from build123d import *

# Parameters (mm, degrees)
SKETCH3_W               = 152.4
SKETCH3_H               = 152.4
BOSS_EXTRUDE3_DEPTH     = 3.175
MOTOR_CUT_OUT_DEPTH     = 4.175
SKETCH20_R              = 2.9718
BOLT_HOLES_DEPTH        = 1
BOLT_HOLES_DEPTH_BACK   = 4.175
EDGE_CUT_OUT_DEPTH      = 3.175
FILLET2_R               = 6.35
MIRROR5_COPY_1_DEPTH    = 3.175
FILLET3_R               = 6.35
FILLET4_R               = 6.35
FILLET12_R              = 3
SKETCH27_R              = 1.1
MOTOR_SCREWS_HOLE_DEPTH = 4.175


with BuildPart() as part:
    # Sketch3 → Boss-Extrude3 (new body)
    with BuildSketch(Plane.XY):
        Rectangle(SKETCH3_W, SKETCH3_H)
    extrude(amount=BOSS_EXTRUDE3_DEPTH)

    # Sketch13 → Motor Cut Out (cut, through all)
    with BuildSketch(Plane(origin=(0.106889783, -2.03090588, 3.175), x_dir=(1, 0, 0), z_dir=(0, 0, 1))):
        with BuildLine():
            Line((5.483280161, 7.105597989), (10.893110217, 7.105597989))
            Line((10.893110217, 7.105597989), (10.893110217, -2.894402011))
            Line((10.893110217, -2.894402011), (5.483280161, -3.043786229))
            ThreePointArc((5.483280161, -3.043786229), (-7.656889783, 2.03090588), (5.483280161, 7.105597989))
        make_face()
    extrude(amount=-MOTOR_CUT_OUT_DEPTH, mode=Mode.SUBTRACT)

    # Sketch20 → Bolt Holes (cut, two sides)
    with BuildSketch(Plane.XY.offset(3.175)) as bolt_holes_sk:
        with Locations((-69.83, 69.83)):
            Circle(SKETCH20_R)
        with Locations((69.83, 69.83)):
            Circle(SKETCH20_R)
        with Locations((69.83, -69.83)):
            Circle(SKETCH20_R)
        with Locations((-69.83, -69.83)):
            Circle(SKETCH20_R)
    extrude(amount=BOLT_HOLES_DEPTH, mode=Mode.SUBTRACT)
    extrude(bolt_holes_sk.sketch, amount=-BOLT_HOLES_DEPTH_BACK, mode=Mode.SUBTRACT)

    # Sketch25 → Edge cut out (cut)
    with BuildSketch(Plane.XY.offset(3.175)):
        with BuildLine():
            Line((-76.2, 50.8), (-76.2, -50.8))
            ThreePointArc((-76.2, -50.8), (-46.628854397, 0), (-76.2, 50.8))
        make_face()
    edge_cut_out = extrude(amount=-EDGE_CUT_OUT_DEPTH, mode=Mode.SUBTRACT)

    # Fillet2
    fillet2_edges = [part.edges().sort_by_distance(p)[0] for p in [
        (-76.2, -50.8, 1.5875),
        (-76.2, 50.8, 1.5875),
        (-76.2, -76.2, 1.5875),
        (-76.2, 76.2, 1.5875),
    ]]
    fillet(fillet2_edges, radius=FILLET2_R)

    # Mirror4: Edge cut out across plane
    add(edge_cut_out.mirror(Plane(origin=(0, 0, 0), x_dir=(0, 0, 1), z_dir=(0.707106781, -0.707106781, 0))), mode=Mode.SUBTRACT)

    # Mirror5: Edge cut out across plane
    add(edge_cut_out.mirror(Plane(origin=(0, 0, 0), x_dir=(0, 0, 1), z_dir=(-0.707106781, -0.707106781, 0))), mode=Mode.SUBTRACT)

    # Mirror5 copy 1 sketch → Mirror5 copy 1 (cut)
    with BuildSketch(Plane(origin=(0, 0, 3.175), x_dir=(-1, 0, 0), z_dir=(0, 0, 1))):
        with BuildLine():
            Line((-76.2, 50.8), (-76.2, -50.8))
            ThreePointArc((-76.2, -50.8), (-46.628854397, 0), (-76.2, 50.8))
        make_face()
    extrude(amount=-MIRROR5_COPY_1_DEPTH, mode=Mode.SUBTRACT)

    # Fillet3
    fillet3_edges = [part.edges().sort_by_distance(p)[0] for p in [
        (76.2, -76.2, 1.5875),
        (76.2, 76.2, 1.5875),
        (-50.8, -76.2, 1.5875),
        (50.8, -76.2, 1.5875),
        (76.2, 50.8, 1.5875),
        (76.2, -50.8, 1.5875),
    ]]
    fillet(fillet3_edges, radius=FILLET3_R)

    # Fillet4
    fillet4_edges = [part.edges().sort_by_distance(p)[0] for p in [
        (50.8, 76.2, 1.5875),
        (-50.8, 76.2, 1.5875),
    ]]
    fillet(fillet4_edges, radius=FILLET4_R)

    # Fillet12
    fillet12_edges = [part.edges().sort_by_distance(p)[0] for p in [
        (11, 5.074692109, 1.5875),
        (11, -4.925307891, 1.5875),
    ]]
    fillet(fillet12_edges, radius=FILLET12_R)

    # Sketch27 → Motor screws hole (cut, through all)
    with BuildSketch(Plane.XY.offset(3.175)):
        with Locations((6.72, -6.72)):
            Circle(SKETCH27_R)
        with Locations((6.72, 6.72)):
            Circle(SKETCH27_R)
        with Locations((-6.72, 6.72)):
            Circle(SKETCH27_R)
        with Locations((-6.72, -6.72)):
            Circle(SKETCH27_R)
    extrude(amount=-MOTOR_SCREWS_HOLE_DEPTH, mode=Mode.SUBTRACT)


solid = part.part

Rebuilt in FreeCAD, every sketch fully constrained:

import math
import FreeCAD as App
import Part
import Sketcher
Q = App.Units.Quantity


def edges_at(feature, points):
    """Names of the edges that pass closest to the given points."""
    edges = feature.Shape.Edges
    near = lambda p: min(range(len(edges)), key=lambda i: edges[i].distToShape(Part.Vertex(*p))[0])
    return sorted({f"Edge{near(p) + 1}" for p in points})


def add_polygon(sketch, points):
    """Adds a closed chain of lines whose ends are joined by coincident constraints."""
    first, n = sketch.GeometryCount, len(points)
    for a, b in zip(points, points[1:] + points[:1]):
        sketch.addGeometry(Part.LineSegment(App.Vector(*a, 0), App.Vector(*b, 0)), False)
    for i in range(n):
        sketch.addConstraint(Sketcher.Constraint("Coincident", first + i, 2, first + (i + 1) % n, 1))

doc = App.newDocument("Part")
body = doc.addObject("PartDesign::Body", "Body")

# Sketch on XY plane
sketch1 = doc.addObject("Sketcher::SketchObject", "Sketch")
body.addObject(sketch1)
sketch1.AttachmentSupport = (doc.XY_Plane, [""])
sketch1.MapMode = "FlatFace"
add_polygon(sketch1, [(-76.2, 76.2), (-76.2, -76.2), (76.2, -76.2), (76.2, 76.2)])  # lines 0-3
sketch1.addConstraint(Sketcher.Constraint("Vertical", 0))
sketch1.addConstraint(Sketcher.Constraint("Horizontal", 1))
sketch1.addConstraint(Sketcher.Constraint("Vertical", 2))
sketch1.addConstraint(Sketcher.Constraint("Horizontal", 3))
sketch1.addConstraint(Sketcher.Constraint("Symmetric", 0, 2, 2, 2, -1, 1))
sketch1.addConstraint(Sketcher.Constraint("Equal", 3, 0))
sketch1.addConstraint(Sketcher.Constraint("DistanceX", 1, 1, 1, 2, Q("6 in")))
pad1 = doc.addObject("PartDesign::Pad", "Pad")
body.addObject(pad1)
pad1.Profile = sketch1
pad1.Length = Q("0.125 in")

# Sketch on XY plane
sketch2 = doc.addObject("Sketcher::SketchObject", "Sketch001")
body.addObject(sketch2)
sketch2.AttachmentSupport = (doc.XY_Plane, [""])
sketch2.MapMode = "FlatFace"
sketch2.AttachmentOffset = App.Placement(App.Vector(0, 0, 0.125 * 25.4), App.Rotation())
sketch2.addGeometry(Part.LineSegment(App.Vector(11, 5.074692, 0), App.Vector(5.59017, 5.074692, 0)), False)
sketch2.addGeometry(Part.ArcOfCircle(Part.Circle(App.Vector(0, 0, 0), App.Vector(0, 0, 1), 7.55), math.radians(42.232807), math.radians(317.767193)), False)
sketch2.addGeometry(Part.LineSegment(App.Vector(5.59017, -5.074692, 0), App.Vector(11, -4.925308, 0)), False)
sketch2.addGeometry(Part.LineSegment(App.Vector(11, -4.925308, 0), App.Vector(11, 5.074692, 0)), False)
sketch2.addConstraint(Sketcher.Constraint("Coincident", 0, 2, 1, 1))
sketch2.addConstraint(Sketcher.Constraint("Coincident", 1, 2, 2, 1))
sketch2.addConstraint(Sketcher.Constraint("Coincident", 2, 2, 3, 1))
sketch2.addConstraint(Sketcher.Constraint("Coincident", 3, 2, 0, 1))
sketch2.addConstraint(Sketcher.Constraint("Horizontal", 0))
sketch2.addConstraint(Sketcher.Constraint("Vertical", 3))
sketch2.addConstraint(Sketcher.Constraint("Coincident", 1, 3, -1, 1))
sketch2.addConstraint(Sketcher.Constraint("Vertical", 0, 2, 1, 2))
sketch2.addConstraint(Sketcher.Constraint("Radius", 1, 7.55))
sketch2.addConstraint(Sketcher.Constraint("DistanceY", 3, 1, 3, 2, 10.0))
sketch2.addConstraint(Sketcher.Constraint("DistanceX", 0, 2, 0, 1, 5.40983))
sketch2.addConstraint(Sketcher.Constraint("DistanceX", -1, 1, 2, 2, 11.0))
pocket1 = doc.addObject("PartDesign::Pocket", "Pocket")
body.addObject(pocket1)
pocket1.Profile = sketch2
pocket1.Type = "ThroughAll"

# Sketch on XY plane
sketch3 = doc.addObject("Sketcher::SketchObject", "Sketch002")
body.addObject(sketch3)
sketch3.AttachmentSupport = (doc.XY_Plane, [""])
sketch3.MapMode = "FlatFace"
sketch3.AttachmentOffset = App.Placement(App.Vector(0, 0, 0.125 * 25.4), App.Rotation())
sketch3.addGeometry(Part.Circle(App.Vector(-69.83, 69.83, 0), App.Vector(0, 0, 1), 2.9718), False)
sketch3.addGeometry(Part.Circle(App.Vector(69.83, 69.83, 0), App.Vector(0, 0, 1), 2.9718), False)
sketch3.addGeometry(Part.Circle(App.Vector(69.83, -69.83, 0), App.Vector(0, 0, 1), 2.9718), False)
sketch3.addGeometry(Part.Circle(App.Vector(-69.83, -69.83, 0), App.Vector(0, 0, 1), 2.9718), False)
sketch3.addConstraint(Sketcher.Constraint("Equal", 0, 1))
sketch3.addConstraint(Sketcher.Constraint("Equal", 1, 2))
sketch3.addConstraint(Sketcher.Constraint("Equal", 2, 3))
sketch3.addConstraint(Sketcher.Constraint("Symmetric", 0, 3, 2, 3, -1, 1))
sketch3.addConstraint(Sketcher.Constraint("Symmetric", 1, 3, 3, 3, -1, 1))
sketch3.addConstraint(Sketcher.Constraint("Symmetric", 0, 3, 1, 3, -2))
sketch3.addConstraint(Sketcher.Constraint("Diameter", 0, Q("0.234 in")))
sketch3.addConstraint(Sketcher.Constraint("DistanceX", 0, 3, -1, 1, 69.83))
sketch3.addConstraint(Sketcher.Constraint("DistanceY", -1, 1, 0, 3, 69.83))
pocket2 = doc.addObject("PartDesign::Pocket", "Pocket001")
body.addObject(pocket2)
pocket2.Profile = sketch3
pocket2.Type = "ThroughAll"
pocket2.Midplane = True

# Sketch on XY plane
sketch4 = doc.addObject("Sketcher::SketchObject", "Sketch003")
body.addObject(sketch4)
sketch4.AttachmentSupport = (doc.XY_Plane, [""])
sketch4.MapMode = "FlatFace"
sketch4.AttachmentOffset = App.Placement(App.Vector(0, 0, 0.125 * 25.4), App.Rotation())
sketch4.addGeometry(Part.LineSegment(App.Vector(-76.2, 50.8, 0), App.Vector(-76.2, -50.8, 0)), False)
sketch4.addGeometry(Part.ArcOfCircle(Part.Circle(App.Vector(-105.048854, 0, 0), App.Vector(0, 0, 1), 58.42), math.radians(-60.408154), math.radians(60.408154)), False)
sketch4.addConstraint(Sketcher.Constraint("Coincident", 0, 1, 1, 2))
sketch4.addConstraint(Sketcher.Constraint("Coincident", 1, 1, 0, 2))
sketch4.addConstraint(Sketcher.Constraint("Vertical", 0))
sketch4.addConstraint(Sketcher.Constraint("PointOnObject", 1, 3, -1))
sketch4.addConstraint(Sketcher.Constraint("Radius", 1, Q("2.3 in")))
sketch4.addConstraint(Sketcher.Constraint("DistanceY", 0, 2, 0, 1, Q("4 in")))
sketch4.addConstraint(Sketcher.Constraint("DistanceX", 0, 1, -1, 1, Q("3 in")))
pocket3 = doc.addObject("PartDesign::Pocket", "Pocket002")
body.addObject(pocket3)
pocket3.Profile = sketch4
pocket3.Length = Q("0.125 in")
doc.recompute()

fillet = doc.addObject("PartDesign::Fillet", "Fillet")
body.addObject(fillet)
fillet.Base = (pocket3, edges_at(pocket3, [
    (-76.2, -50.8, 1.587),
    (-76.2, 50.8, 1.587),
    (-76.2, -76.2, 1.587),
    (-76.2, 76.2, 1.587),
]))
fillet.Radius = Q("0.25 in")
doc.recompute()

datumplane = doc.addObject("PartDesign::Plane", "DatumPlane")
body.addObject(datumplane)
datumplane.Placement = App.Placement(App.Vector(0, 0, 0), App.Rotation(App.Vector(-0.707106781, -0.707106781, 0), App.Vector(0, 0, -1), App.Vector(0.707106781, -0.707106781, 0), "ZXY"))
mirrored = doc.addObject("PartDesign::Mirrored", "Mirrored")
body.addObject(mirrored)
mirrored.Originals = [pocket3]
mirrored.MirrorPlane = (datumplane, [""])
body.Tip = mirrored
doc.recompute()

datumplane2 = doc.addObject("PartDesign::Plane", "DatumPlane001")
body.addObject(datumplane2)
datumplane2.Placement = App.Placement(App.Vector(0, 0, 0), App.Rotation(App.Vector(-0.707106781, 0.707106781, 0), App.Vector(0, 0, -1), App.Vector(-0.707106781, -0.707106781, 0), "ZXY"))
mirrored2 = doc.addObject("PartDesign::Mirrored", "Mirrored001")
body.addObject(mirrored2)
mirrored2.Originals = [pocket3]
mirrored2.MirrorPlane = (datumplane2, [""])
body.Tip = mirrored2

# Sketch on XY plane
sketch5 = doc.addObject("Sketcher::SketchObject", "Sketch004")
body.addObject(sketch5)
sketch5.AttachmentSupport = (doc.XY_Plane, [""])
sketch5.MapMode = "FlatFace"
sketch5.AttachmentOffset = App.Placement(App.Vector(0, 0, 0.125 * 25.4), App.Rotation())
sketch5.addGeometry(Part.LineSegment(App.Vector(76.2, -50.8, 0), App.Vector(76.2, 50.8, 0)), False)
sketch5.addGeometry(Part.ArcOfCircle(Part.Circle(App.Vector(105.048854, 0, 0), App.Vector(0, 0, 1), 58.42), math.radians(119.591846), math.radians(240.408154)), False)
sketch5.addConstraint(Sketcher.Constraint("Coincident", 0, 1, 1, 2))
sketch5.addConstraint(Sketcher.Constraint("Coincident", 1, 1, 0, 2))
sketch5.addConstraint(Sketcher.Constraint("Vertical", 0))
sketch5.addConstraint(Sketcher.Constraint("PointOnObject", 1, 3, -1))
sketch5.addConstraint(Sketcher.Constraint("Radius", 1, Q("2.3 in")))
sketch5.addConstraint(Sketcher.Constraint("DistanceY", 0, 1, 0, 2, Q("4 in")))
sketch5.addConstraint(Sketcher.Constraint("DistanceX", -1, 1, 0, 1, Q("3 in")))
pocket4 = doc.addObject("PartDesign::Pocket", "Pocket003")
body.addObject(pocket4)
pocket4.Profile = sketch5
pocket4.Length = Q("0.125 in")
doc.recompute()

fillet2 = doc.addObject("PartDesign::Fillet", "Fillet001")
body.addObject(fillet2)
fillet2.Base = (pocket4, edges_at(pocket4, [
    (76.2, -76.2, 1.587),
    (76.2, 76.2, 1.587),
    (-50.8, -76.2, 1.587),
    (50.8, -76.2, 1.587),
    (76.2, 50.8, 1.587),
    (76.2, -50.8, 1.587),
]))
fillet2.Radius = Q("0.25 in")
doc.recompute()

fillet3 = doc.addObject("PartDesign::Fillet", "Fillet002")
body.addObject(fillet3)
fillet3.Base = (fillet2, edges_at(fillet2, [(50.8, 76.2, 1.587), (-50.8, 76.2, 1.587)]))
fillet3.Radius = Q("0.25 in")
doc.recompute()

fillet4 = doc.addObject("PartDesign::Fillet", "Fillet003")
body.addObject(fillet4)
fillet4.Base = (fillet3, edges_at(fillet3, [(11, 5.075, 1.587), (11, -4.925, 1.587)]))
fillet4.Radius = 3

# Sketch on XY plane
sketch6 = doc.addObject("Sketcher::SketchObject", "Sketch005")
body.addObject(sketch6)
sketch6.AttachmentSupport = (doc.XY_Plane, [""])
sketch6.MapMode = "FlatFace"
sketch6.AttachmentOffset = App.Placement(App.Vector(0, 0, 0.125 * 25.4), App.Rotation())
sketch6.addGeometry(Part.Circle(App.Vector(6.72, -6.72, 0), App.Vector(0, 0, 1), 1.1), False)
sketch6.addGeometry(Part.Circle(App.Vector(6.72, 6.72, 0), App.Vector(0, 0, 1), 1.1), False)
sketch6.addGeometry(Part.Circle(App.Vector(-6.72, 6.72, 0), App.Vector(0, 0, 1), 1.1), False)
sketch6.addGeometry(Part.Circle(App.Vector(-6.72, -6.72, 0), App.Vector(0, 0, 1), 1.1), False)
sketch6.addConstraint(Sketcher.Constraint("Equal", 0, 1))
sketch6.addConstraint(Sketcher.Constraint("Equal", 1, 2))
sketch6.addConstraint(Sketcher.Constraint("Equal", 2, 3))
sketch6.addConstraint(Sketcher.Constraint("Symmetric", 0, 3, 2, 3, -1, 1))
sketch6.addConstraint(Sketcher.Constraint("Symmetric", 1, 3, 3, 3, -1, 1))
sketch6.addConstraint(Sketcher.Constraint("Symmetric", 1, 3, 2, 3, -2))
sketch6.addConstraint(Sketcher.Constraint("Diameter", 0, 2.2))
sketch6.addConstraint(Sketcher.Constraint("DistanceX", -1, 1, 0, 3, 6.72))
sketch6.addConstraint(Sketcher.Constraint("DistanceY", 0, 3, -1, 1, 6.72))
pocket5 = doc.addObject("PartDesign::Pocket", "Pocket004")
body.addObject(pocket5)
pocket5.Profile = sketch6
pocket5.Type = "ThroughAll"

doc.recompute()
